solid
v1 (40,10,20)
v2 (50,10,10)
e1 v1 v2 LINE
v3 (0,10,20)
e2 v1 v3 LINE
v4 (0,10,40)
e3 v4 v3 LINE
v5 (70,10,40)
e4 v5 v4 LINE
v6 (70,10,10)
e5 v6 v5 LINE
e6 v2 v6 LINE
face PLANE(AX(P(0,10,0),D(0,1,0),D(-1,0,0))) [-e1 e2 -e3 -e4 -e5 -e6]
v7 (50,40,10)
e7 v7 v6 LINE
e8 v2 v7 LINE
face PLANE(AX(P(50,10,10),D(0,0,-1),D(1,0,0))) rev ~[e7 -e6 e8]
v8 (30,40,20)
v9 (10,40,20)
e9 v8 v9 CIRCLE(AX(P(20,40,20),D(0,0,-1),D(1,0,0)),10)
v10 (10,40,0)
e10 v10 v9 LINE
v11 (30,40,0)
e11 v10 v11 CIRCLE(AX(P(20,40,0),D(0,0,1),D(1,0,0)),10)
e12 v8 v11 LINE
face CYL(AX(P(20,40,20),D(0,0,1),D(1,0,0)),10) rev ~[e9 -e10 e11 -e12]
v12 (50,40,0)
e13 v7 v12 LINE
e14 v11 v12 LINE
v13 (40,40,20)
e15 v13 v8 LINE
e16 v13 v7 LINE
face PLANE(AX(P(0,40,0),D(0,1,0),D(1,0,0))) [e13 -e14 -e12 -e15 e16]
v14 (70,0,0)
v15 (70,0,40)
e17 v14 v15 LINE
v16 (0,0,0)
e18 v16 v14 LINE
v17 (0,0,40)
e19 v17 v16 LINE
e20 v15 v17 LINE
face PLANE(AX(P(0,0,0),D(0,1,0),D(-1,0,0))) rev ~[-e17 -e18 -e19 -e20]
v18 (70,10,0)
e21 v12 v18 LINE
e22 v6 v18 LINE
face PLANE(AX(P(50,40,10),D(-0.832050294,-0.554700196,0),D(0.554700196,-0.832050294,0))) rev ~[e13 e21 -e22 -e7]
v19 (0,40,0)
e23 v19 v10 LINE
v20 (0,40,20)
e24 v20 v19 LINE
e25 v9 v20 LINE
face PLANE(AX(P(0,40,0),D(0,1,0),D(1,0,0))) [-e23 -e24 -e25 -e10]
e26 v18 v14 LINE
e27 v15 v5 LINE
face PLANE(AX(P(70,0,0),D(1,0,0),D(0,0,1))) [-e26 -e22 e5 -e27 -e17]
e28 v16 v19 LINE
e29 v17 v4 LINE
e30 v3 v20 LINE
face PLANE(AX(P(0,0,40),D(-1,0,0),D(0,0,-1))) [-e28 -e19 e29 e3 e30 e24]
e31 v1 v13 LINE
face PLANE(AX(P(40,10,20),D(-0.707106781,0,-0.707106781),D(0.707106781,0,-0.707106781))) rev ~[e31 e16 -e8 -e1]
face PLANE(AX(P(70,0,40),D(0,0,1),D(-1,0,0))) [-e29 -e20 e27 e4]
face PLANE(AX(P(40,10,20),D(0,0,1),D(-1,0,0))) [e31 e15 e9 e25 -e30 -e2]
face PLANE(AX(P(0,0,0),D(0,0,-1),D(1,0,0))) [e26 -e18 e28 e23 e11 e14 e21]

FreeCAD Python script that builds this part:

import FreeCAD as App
import Part
import Sketcher

V = App.Vector


def add_polygon(sketch, points):
    """Adds a closed chain of lines whose ends are joined by coincident constraints."""
    first, n = sketch.GeometryCount, len(points)
    for a, b in zip(points, points[1:] + points[:1]):
        sketch.addGeometry(Part.LineSegment(App.Vector(*a, 0), App.Vector(*b, 0)), False)
    for i in range(n):
        sketch.addConstraint(Sketcher.Constraint("Coincident", first + i, 2, first + (i + 1) % n, 1))

doc = App.newDocument("Part")
body = doc.addObject("PartDesign::Body", "Body")

# Sketch on XZ plane
sketch1 = body.newObject("Sketcher::SketchObject", "Sketch")
sketch1.AttachmentSupport = (doc.getObject("XZ_Plane"), [""])
sketch1.MapMode = "FlatFace"
add_polygon(sketch1, [(70, 0), (0, 0), (0, 40), (70, 40)])  # lines 0-3
sketch1.addConstraint([
    Sketcher.Constraint("Horizontal", 0),
    Sketcher.Constraint("Vertical", 1),
    Sketcher.Constraint("Horizontal", 2),
    Sketcher.Constraint("Vertical", 3),
    Sketcher.Constraint("Coincident", 0, 2, -1, 1),
    Sketcher.Constraint("DistanceX", 0, 2, 0, 1, 70.0),
    Sketcher.Constraint("DistanceY", 1, 1, 1, 2, 40.0),
])
pad1 = body.newObject("PartDesign::Pad", "Pad")
pad1.Profile = sketch1
pad1.Length = 10
pad1.Reversed = True

# Sketch on XZ plane
sketch2 = body.newObject("Sketcher::SketchObject", "Sketch001")
sketch2.AttachmentSupport = (doc.getObject("XZ_Plane"), [""])
sketch2.MapMode = "FlatFace"
sketch2.AttachmentOffset = App.Placement(V(0, 0, -10), App.Rotation())
add_polygon(sketch2, [(0, 0), (0, 20), (40, 20), (50, 10), (70, 10), (70, 0)])  # lines 0-5
sketch2.addConstraint([
    Sketcher.Constraint("Vertical", 0),
    Sketcher.Constraint("Horizontal", 1),
    Sketcher.Constraint("Horizontal", 3),
    Sketcher.Constraint("Vertical", 4),
    Sketcher.Constraint("Horizontal", 5),
    Sketcher.Constraint("Coincident", 5, 2, -1, 1),
    Sketcher.Constraint("Equal", 3, 0),
    Sketcher.Constraint("DistanceX", 3, 1, 3, 2, 20.0),
    Sketcher.Constraint("DistanceY", 4, 2, 4, 1, 10.0),
    Sketcher.Constraint("DistanceX", 1, 2, 2, 2, 10.0),
    Sketcher.Constraint("DistanceX", 1, 1, 1, 2, 40.0),
])
pad2 = body.newObject("PartDesign::Pad", "Pad001")
pad2.Profile = sketch2
pad2.Length = 30
pad2.Reversed = True

# Sketch on XY plane
sketch3 = body.newObject("Sketcher::SketchObject", "Sketch002")
sketch3.AttachmentSupport = (doc.getObject("XY_Plane"), [""])
sketch3.MapMode = "FlatFace"
sketch3.AttachmentOffset = App.Placement(V(0, 0, 10), App.Rotation())
add_polygon(sketch3, [(70, 40), (50, 40), (70, 10)])  # lines 0-2
sketch3.addConstraint([
    Sketcher.Constraint("Horizontal", 0),
    Sketcher.Constraint("Vertical", 2),
    Sketcher.Constraint("DistanceX", 0, 2, 0, 1, 20.0),
    Sketcher.Constraint("DistanceY", 2, 1, 2, 2, 30.0),
    Sketcher.Constraint("DistanceX", -1, 1, 0, 2, 50.0),
    Sketcher.Constraint("DistanceY", -1, 1, 0, 2, 40.0),
])
pocket1 = body.newObject("PartDesign::Pocket", "Pocket")
pocket1.Profile = sketch3
pocket1.Length = 10

# Sketch on XY plane
sketch4 = body.newObject("Sketcher::SketchObject", "Sketch003")
sketch4.AttachmentSupport = (doc.getObject("XY_Plane"), [""])
sketch4.MapMode = "FlatFace"
sketch4.AttachmentOffset = App.Placement(V(0, 0, 20), App.Rotation())
sketch4.addGeometry(Part.Circle(V(20, 40, 0), V(0, 0, 1), 10), False)
sketch4.addConstraint([
    Sketcher.Constraint("Diameter", 0, 20.0),
    Sketcher.Constraint("DistanceX", -1, 1, 0, 3, 20.0),
    Sketcher.Constraint("DistanceY", -1, 1, 0, 3, 40.0),
])
pocket2 = body.newObject("PartDesign::Pocket", "Pocket001")
pocket2.Profile = sketch4
pocket2.Length = 46

doc.recompute()
